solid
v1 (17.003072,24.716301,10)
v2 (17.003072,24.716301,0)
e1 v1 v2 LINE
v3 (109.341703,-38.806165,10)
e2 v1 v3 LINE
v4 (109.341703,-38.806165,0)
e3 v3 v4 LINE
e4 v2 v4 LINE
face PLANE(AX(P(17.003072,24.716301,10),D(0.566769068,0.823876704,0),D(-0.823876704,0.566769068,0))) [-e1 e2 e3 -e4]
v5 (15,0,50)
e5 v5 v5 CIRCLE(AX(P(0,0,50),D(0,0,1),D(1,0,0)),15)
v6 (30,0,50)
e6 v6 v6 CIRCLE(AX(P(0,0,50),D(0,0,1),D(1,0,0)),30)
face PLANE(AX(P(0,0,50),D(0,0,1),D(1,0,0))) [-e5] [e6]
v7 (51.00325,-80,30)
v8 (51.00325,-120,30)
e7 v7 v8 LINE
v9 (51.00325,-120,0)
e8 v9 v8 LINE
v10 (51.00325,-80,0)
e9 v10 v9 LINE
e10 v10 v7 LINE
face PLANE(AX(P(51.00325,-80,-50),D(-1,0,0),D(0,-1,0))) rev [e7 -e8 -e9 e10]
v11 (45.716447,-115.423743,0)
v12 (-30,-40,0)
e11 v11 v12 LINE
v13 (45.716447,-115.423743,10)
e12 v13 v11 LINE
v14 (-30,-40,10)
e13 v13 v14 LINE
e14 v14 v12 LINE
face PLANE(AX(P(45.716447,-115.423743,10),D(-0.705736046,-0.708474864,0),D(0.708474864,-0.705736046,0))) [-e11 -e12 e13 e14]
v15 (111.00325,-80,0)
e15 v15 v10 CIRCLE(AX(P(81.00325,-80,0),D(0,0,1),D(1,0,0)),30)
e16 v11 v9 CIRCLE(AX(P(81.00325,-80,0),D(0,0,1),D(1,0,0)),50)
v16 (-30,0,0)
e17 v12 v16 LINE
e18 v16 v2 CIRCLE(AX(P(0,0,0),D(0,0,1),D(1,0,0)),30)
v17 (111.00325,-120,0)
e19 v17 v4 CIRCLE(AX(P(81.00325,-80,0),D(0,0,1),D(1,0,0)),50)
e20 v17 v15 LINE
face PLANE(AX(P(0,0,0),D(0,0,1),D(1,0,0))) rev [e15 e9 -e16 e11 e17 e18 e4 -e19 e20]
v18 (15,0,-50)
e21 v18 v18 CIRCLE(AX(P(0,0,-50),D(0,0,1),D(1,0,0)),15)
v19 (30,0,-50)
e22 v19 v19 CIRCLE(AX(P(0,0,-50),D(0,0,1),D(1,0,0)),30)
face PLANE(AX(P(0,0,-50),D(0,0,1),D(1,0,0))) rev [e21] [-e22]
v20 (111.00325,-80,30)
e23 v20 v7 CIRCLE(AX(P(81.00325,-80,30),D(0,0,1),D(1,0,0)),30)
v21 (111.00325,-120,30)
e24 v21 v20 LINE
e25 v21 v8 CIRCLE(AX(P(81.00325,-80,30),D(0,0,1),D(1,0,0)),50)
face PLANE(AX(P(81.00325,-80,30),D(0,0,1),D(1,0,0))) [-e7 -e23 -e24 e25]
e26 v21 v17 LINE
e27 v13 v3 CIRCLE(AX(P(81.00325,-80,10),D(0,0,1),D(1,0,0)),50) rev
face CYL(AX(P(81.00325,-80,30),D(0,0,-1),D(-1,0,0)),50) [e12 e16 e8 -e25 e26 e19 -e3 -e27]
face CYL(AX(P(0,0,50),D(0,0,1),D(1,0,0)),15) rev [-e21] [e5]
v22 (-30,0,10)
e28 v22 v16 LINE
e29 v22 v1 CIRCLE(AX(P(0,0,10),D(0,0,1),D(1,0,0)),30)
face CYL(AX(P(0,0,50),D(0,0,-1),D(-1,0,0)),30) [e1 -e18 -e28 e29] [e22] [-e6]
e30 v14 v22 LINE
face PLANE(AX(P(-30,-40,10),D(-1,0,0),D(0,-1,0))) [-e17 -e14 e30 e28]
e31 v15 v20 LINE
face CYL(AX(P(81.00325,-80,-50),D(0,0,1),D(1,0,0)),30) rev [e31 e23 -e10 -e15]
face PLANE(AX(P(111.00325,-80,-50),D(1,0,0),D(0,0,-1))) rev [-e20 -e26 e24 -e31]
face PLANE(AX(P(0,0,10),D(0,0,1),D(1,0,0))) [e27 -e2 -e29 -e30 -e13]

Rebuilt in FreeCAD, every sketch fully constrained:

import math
import FreeCAD as App
import Part
import Sketcher
from FreeCAD import Vector
Q = App.Units.Quantity

doc = App.newDocument("Part")
params = doc.addObject("Spreadsheet::Sheet", "Params")
for row, (alias, value) in enumerate([
    ("sketch1_diameter", "60 mm"),
    ("pad1_length", "100 mm"),
    ("sketch2_diameter", "100 mm"),
    ("pad2_length", "30 mm"),
    ("sketch3_height", "40 mm"),
    ("pad3_length", "10 mm"),
    ("sketch4_diameter", "30 mm"),
    ("hole_diameter", "30 mm"),
    ("sketch5_radius", "30 mm"),
], start=1):
    params.set(f"A{row}", alias)
    params.set(f"B{row}", "=" + value)
    params.setAlias(f"B{row}", alias)

body = doc.addObject("PartDesign::Body", "Body")

# Sketch on XY plane
sketch1 = body.newObject("Sketcher::SketchObject", "Sketch")
sketch1.AttachmentSupport = (doc.getObject("XY_Plane"), [""])
sketch1.MapMode = "FlatFace"
sketch1.addGeometry(Part.Circle(Vector(0, 0, 0), Vector(0, 0, 1), 30), False)
sketch1.addConstraint(Sketcher.Constraint("Coincident", 0, 3, -1, 1))
sketch1.addConstraint(Sketcher.Constraint("Diameter", 0, Q("60 mm")))
sketch1.setExpression("Constraints[1]", "Params.sketch1_diameter")
pad1 = body.newObject("PartDesign::Pad", "Pad")
pad1.Profile = sketch1
pad1.setExpression("Length", "Params.pad1_length")
pad1.Midplane = True
body2 = doc.addObject("PartDesign::Body", "Body001")

# Sketch on XY plane
sketch2 = body2.newObject("Sketcher::SketchObject", "Sketch001")
sketch2.AttachmentSupport = (doc.getObject("XY_Plane001"), [""])
sketch2.MapMode = "FlatFace"
sketch2.addGeometry(Part.Circle(Vector(81.00325, -80, 0), Vector(0, 0, 1), 50), False)
sketch2.addConstraint(Sketcher.Constraint("Diameter", 0, Q("100 mm")))
sketch2.addConstraint(Sketcher.Constraint("DistanceY", 0, 3, -1, 1, Q("80 mm")))
sketch2.addConstraint(Sketcher.Constraint("DistanceX", -1, 1, 0, 3, Q("81.00325 mm")))
sketch2.setExpression("Constraints[0]", "Params.sketch2_diameter")
pad2 = body2.newObject("PartDesign::Pad", "Pad001")
pad2.Profile = sketch2
pad2.setExpression("Length", "Params.pad2_length")
body.AllowCompound = True
doc.recompute()

boolean = body.newObject("PartDesign::Boolean", "Boolean")
boolean.Type = "Fuse"
boolean.addObjects([body2])

# Sketch on XY plane
sketch3 = body.newObject("Sketcher::SketchObject", "Sketch002")
sketch3.AttachmentSupport = (doc.getObject("XY_Plane"), [""])
sketch3.MapMode = "FlatFace"
sketch3.addGeometry(Part.LineSegment(Vector(109.341703, -38.806165, 0), Vector(17.003072, 24.716301, 0)), False)
sketch3.addGeometry(Part.LineSegment(Vector(17.003072, 24.716301, 0), Vector(-30, 0, 0)), False)
sketch3.addGeometry(Part.LineSegment(Vector(-30, 0, 0), Vector(-30, -40, 0)), False)
sketch3.addGeometry(Part.LineSegment(Vector(-30, -40, 0), Vector(45.716447, -115.423743, 0)), False)
sketch3.addGeometry(Part.LineSegment(Vector(45.716447, -115.423743, 0), Vector(109.341703, -38.806165, 0)), False)
sketch3.addConstraint(Sketcher.Constraint("Coincident", 0, 2, 1, 1))
sketch3.addConstraint(Sketcher.Constraint("Coincident", 1, 2, 2, 1))
sketch3.addConstraint(Sketcher.Constraint("Coincident", 2, 2, 3, 1))
sketch3.addConstraint(Sketcher.Constraint("Coincident", 3, 2, 4, 1))
sketch3.addConstraint(Sketcher.Constraint("Coincident", 4, 2, 0, 1))
sketch3.addConstraint(Sketcher.Constraint("Vertical", 2))
sketch3.addConstraint(Sketcher.Constraint("PointOnObject", 1, 2, -1))
sketch3.addConstraint(Sketcher.Constraint("DistanceY", 2, 2, 2, 1, Q("40 mm")))
sketch3.addConstraint(Sketcher.Constraint("DistanceX", 1, 2, -1, 1, Q("30 mm")))
sketch3.addConstraint(Sketcher.Constraint("DistanceY", -1, 1, 0, 2, Q("24.716301 mm")))
sketch3.addConstraint(Sketcher.Constraint("DistanceY", 3, 2, 4, 2, Q("76.617578 mm")))
sketch3.addConstraint(Sketcher.Constraint("DistanceX", 0, 2, 4, 2, Q("92.338631 mm")))
sketch3.addConstraint(Sketcher.Constraint("Distance", 0, Q("112.078216 mm")))
sketch3.addConstraint(Sketcher.Constraint("Distance", 1, Q("53.105408 mm")))
sketch3.addConstraint(Sketcher.Constraint("Distance", 3, Q("106.872454 mm")))
sketch3.setExpression("Constraints[7]", "Params.sketch3_height")
pad3 = body.newObject("PartDesign::Pad", "Pad002")
pad3.Profile = sketch3
pad3.setExpression("Length", "Params.pad3_length")

# Sketch on XY plane
sketch4 = body.newObject("Sketcher::SketchObject", "Sketch003")
sketch4.AttachmentSupport = (doc.getObject("XY_Plane"), [""])
sketch4.MapMode = "FlatFace"
sketch4.AttachmentOffset = App.Placement(Vector(0, 0, 50), App.Rotation())
sketch4.addGeometry(Part.Circle(Vector(0, 0, 0), Vector(0, 0, 1), 15), False)
sketch4.addConstraint(Sketcher.Constraint("Coincident", 0, 3, -1, 1))
sketch4.addConstraint(Sketcher.Constraint("Diameter", 0, Q("30 mm")))
sketch4.setExpression("Constraints[1]", "Params.sketch4_diameter")
doc.recompute()
hole = body.newObject("PartDesign::Hole", "Hole")
hole.Profile = sketch4
hole.ThreadType = "None"
hole.setExpression("Diameter", "Params.hole_diameter")
hole.DepthType = "ThroughAll"

# Sketch on XY plane
sketch5 = body.newObject("Sketcher::SketchObject", "Sketch004")
sketch5.AttachmentSupport = (doc.getObject("XY_Plane"), [""])
sketch5.MapMode = "FlatFace"
sketch5.AttachmentOffset = App.Placement(Vector(0, 0, 30), App.Rotation())
sketch5.addGeometry(Part.LineSegment(Vector(111.00325, -166.852912, 0), Vector(111.00325, -80, 0)), False)
sketch5.addGeometry(Part.ArcOfCircle(Part.Circle(Vector(81.00325, -80, 0), Vector(0, 0, 1), 30), math.radians(0), math.radians(180)), False)
sketch5.addGeometry(Part.LineSegment(Vector(51.00325, -80, 0), Vector(51.00325, -166.852912, 0)), False)
sketch5.addGeometry(Part.ArcOfCircle(Part.Circle(Vector(81.00325, -166.852912, 0), Vector(0, 0, 1), 30), math.radians(180), math.radians(360)), False)
sketch5.addConstraint(Sketcher.Constraint("Tangent", 0, 2, 1, 1))
sketch5.addConstraint(Sketcher.Constraint("Tangent", 1, 2, 2, 1))
sketch5.addConstraint(Sketcher.Constraint("Tangent", 2, 2, 3, 1))
sketch5.addConstraint(Sketcher.Constraint("Tangent", 3, 2, 0, 1))
sketch5.addConstraint(Sketcher.Constraint("Vertical", 0))
sketch5.addConstraint(Sketcher.Constraint("Vertical", 2))
sketch5.addConstraint(Sketcher.Constraint("Radius", 1, Q("30 mm")))
sketch5.addConstraint(Sketcher.Constraint("DistanceY", 1, 3, -1, 1, Q("80 mm")))
sketch5.addConstraint(Sketcher.Constraint("DistanceY", 0, 1, 0, 2, Q("86.852912 mm")))
sketch5.addConstraint(Sketcher.Constraint("DistanceX", -1, 1, 1, 3, Q("81.00325 mm")))
sketch5.setExpression("Constraints[6]", "Params.sketch5_radius")
pocket1 = body.newObject("PartDesign::Pocket", "Pocket")
pocket1.Profile = sketch5
pocket1.Type = "ThroughAll"

doc.recompute()
